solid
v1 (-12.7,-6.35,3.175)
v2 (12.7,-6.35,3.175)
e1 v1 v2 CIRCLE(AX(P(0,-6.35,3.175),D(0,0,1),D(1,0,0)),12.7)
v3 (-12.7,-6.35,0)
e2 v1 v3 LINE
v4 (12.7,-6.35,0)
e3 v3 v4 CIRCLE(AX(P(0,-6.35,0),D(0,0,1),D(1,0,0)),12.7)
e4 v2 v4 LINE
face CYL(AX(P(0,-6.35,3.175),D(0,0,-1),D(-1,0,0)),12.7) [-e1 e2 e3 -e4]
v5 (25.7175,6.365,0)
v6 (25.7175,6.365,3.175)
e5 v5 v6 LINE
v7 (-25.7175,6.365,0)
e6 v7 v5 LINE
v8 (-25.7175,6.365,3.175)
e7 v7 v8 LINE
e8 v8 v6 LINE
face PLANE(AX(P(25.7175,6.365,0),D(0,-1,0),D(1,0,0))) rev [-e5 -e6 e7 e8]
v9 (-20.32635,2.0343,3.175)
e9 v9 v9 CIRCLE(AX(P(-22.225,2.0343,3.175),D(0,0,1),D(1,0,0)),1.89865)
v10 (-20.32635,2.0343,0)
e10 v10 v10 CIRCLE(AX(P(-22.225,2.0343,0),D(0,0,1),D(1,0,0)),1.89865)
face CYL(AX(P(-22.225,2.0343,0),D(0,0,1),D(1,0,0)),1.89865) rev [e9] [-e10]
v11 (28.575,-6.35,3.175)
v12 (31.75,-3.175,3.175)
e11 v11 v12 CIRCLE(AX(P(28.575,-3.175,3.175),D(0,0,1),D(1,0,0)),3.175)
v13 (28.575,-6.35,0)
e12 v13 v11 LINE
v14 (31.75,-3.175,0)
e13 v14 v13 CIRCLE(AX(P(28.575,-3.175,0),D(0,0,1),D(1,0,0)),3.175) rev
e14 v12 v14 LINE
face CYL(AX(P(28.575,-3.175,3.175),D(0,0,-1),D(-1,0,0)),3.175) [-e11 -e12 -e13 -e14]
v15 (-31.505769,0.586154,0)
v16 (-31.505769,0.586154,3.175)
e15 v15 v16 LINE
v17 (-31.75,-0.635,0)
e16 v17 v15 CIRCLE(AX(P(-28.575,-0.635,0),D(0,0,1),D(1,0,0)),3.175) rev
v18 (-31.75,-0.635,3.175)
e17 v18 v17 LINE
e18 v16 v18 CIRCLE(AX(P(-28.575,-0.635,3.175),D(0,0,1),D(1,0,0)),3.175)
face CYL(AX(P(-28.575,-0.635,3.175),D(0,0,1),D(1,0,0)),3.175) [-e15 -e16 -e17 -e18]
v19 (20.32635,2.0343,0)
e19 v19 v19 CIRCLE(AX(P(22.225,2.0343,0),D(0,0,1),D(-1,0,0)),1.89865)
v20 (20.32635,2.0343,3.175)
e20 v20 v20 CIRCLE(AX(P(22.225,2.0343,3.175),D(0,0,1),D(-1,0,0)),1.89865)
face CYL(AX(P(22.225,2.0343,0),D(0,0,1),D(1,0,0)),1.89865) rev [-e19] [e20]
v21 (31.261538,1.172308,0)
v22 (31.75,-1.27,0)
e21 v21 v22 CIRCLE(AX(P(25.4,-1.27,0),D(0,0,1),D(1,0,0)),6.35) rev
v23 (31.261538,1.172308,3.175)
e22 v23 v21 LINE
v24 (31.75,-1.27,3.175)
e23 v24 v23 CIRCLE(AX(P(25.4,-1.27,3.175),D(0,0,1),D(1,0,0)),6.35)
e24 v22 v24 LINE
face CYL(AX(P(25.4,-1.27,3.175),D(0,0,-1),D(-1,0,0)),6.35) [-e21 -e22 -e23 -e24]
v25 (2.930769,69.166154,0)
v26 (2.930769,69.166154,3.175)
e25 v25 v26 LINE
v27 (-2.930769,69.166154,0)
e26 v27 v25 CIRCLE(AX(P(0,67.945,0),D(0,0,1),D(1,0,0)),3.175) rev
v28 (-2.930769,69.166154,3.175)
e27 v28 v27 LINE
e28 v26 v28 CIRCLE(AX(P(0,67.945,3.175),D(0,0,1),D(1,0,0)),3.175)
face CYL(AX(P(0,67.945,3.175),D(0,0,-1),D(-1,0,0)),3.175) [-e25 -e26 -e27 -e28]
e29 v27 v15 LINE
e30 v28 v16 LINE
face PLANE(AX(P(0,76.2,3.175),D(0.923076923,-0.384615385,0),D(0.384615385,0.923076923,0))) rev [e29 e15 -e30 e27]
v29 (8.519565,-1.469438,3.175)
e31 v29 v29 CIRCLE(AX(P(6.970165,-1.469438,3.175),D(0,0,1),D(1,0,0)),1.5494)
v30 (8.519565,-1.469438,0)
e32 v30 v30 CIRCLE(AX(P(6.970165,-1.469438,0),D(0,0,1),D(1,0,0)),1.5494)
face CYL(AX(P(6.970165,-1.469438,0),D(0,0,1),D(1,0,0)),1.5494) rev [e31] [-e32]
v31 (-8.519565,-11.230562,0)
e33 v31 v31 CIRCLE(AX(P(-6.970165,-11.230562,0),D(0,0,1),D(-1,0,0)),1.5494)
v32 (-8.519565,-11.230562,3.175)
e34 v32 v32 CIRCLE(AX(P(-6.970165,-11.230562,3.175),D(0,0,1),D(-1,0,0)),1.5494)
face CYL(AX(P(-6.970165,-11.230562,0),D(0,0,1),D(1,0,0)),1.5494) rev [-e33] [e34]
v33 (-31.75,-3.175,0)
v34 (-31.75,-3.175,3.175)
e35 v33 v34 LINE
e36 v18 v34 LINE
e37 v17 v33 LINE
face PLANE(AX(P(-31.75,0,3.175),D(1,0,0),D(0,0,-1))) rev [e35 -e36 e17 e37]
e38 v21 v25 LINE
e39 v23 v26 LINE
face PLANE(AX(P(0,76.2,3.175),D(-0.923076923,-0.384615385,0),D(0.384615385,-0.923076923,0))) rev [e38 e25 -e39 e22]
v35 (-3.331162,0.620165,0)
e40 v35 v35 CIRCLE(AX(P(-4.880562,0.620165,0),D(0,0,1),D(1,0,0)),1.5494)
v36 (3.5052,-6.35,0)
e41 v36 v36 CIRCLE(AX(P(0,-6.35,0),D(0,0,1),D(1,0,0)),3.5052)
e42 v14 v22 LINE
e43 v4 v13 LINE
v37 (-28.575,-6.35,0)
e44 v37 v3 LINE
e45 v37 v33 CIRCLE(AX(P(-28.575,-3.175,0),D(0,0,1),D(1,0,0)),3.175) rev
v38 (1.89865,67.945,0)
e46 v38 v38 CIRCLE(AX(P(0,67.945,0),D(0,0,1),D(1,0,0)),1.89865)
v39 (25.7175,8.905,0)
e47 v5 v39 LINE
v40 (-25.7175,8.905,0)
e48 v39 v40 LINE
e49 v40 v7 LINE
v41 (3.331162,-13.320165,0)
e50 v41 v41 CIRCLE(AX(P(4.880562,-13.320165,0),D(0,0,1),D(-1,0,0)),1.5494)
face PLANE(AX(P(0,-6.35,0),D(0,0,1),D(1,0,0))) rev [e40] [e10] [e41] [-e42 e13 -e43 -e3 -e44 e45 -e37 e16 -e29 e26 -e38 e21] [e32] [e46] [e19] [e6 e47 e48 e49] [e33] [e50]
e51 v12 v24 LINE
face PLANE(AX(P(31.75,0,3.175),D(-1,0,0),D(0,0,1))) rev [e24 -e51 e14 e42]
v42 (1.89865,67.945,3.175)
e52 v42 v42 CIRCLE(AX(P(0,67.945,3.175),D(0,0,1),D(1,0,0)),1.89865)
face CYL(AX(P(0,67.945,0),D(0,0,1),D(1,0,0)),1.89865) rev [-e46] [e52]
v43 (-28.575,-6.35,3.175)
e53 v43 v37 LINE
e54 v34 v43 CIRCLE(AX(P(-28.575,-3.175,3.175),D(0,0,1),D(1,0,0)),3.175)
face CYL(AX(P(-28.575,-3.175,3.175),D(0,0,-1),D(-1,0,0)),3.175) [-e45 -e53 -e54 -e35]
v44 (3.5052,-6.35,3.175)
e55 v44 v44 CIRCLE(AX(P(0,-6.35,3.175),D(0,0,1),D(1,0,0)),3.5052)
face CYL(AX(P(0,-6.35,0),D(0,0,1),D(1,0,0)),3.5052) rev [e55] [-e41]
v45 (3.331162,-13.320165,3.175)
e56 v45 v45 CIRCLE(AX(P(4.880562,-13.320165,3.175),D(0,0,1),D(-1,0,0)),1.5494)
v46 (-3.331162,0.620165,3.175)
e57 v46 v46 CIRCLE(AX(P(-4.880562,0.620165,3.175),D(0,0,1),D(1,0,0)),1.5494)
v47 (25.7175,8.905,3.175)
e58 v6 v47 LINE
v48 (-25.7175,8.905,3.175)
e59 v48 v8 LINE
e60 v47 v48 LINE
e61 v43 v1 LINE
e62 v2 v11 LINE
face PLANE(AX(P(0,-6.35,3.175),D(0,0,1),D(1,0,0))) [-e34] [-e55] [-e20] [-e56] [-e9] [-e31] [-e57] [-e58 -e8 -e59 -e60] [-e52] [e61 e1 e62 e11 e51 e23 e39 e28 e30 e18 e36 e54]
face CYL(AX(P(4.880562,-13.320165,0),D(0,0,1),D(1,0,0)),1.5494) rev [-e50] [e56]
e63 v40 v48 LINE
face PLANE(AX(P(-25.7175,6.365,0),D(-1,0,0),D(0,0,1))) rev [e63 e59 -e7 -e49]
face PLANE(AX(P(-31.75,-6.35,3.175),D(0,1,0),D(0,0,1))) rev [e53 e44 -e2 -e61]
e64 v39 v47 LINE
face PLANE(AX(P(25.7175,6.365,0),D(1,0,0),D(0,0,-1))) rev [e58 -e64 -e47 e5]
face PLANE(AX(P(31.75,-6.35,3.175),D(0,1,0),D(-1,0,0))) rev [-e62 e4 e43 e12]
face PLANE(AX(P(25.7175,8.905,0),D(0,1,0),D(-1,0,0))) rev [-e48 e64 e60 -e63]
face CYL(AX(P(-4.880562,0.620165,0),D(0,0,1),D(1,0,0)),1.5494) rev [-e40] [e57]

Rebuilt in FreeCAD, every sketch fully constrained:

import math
import FreeCAD as App
import Part
import Sketcher
from FreeCAD import Vector
Q = App.Units.Quantity


def edges_at(feature, points):
    """Names of the edges that pass closest to the given points."""
    edges = feature.Shape.Edges
    near = lambda p: min(range(len(edges)), key=lambda i: edges[i].distToShape(Part.Vertex(*p))[0])
    return sorted({f"Edge{near(p) + 1}" for p in points})

doc = App.newDocument("Part")
params = doc.addObject("Spreadsheet::Sheet", "Params")
for row, (alias, value) in enumerate([
    ("sketch1_radius", "0.5 in"),
    ("sketch1_width", "0.75 in"),
    ("sketch1_height", "0.25 in"),
    ("pad1_length", "0.125 in"),
    ("fillet_radius", "0.125 in"),
    ("fillet2_radius", "0.125 in"),
    ("fillet3_radius", "0.125 in"),
    ("fillet4_radius", "0.25 in"),
    ("fillet5_radius", "0.125 in"),
    ("sketch2_diameter", "0.276 in"),
    ("sketch2_diameter2", "0.122 in"),
    ("sketch3_height", "0.1 in"),
    ("sketch3_width", "2.025 in"),
], start=1):
    params.set(f"A{row}", alias)
    params.set(f"B{row}", "=" + value)
    params.setAlias(f"B{row}", alias)

body = doc.addObject("PartDesign::Body", "Body")

# Sketch on XY plane
sketch1 = doc.addObject("Sketcher::SketchObject", "Sketch")
body.addObject(sketch1)
sketch1.AttachmentSupport = (doc.XY_Plane, [""])
sketch1.MapMode = "FlatFace"
sketch1.addGeometry([
    Part.LineSegment(Vector(-32, 0, 0), Vector(-32, -6, 0)),  # 0
    Part.LineSegment(Vector(-32, -6, 0), Vector(-13, -6, 0)),  # 1
    Part.ArcOfCircle(Part.Circle(Vector(0, -6, 0), Vector(0, 0, 1), 13), math.radians(180), math.radians(360)),  # 2
    Part.LineSegment(Vector(13, -6, 0), Vector(32, -6, 0)),  # 3
    Part.LineSegment(Vector(32, -6, 0), Vector(32, 0, 0)),  # 4
    Part.LineSegment(Vector(32, 0, 0), Vector(0, 76, 0)),  # 5
    Part.LineSegment(Vector(0, 76, 0), Vector(-32, 0, 0)),  # 6
], False)
sketch1.addConstraint([
    Sketcher.Constraint("Coincident", 0, 2, 1, 1),
    Sketcher.Constraint("Coincident", 1, 2, 2, 1),
    Sketcher.Constraint("Coincident", 2, 2, 3, 1),
    Sketcher.Constraint("Coincident", 3, 2, 4, 1),
    Sketcher.Constraint("Coincident", 4, 2, 5, 1),
    Sketcher.Constraint("Coincident", 5, 2, 6, 1),
    Sketcher.Constraint("Coincident", 6, 2, 0, 1),
    Sketcher.Constraint("Vertical", 0),
    Sketcher.Constraint("Horizontal", 1),
    Sketcher.Constraint("Horizontal", 3),
    Sketcher.Constraint("Vertical", 4),
    Sketcher.Constraint("Symmetric", 4, 2, 6, 2, -1, 1),
    Sketcher.Constraint("Symmetric", 1, 2, 2, 2, -2),
    Sketcher.Constraint("PointOnObject", 4, 2, -1),
    Sketcher.Constraint("PointOnObject", 5, 2, -2),
    Sketcher.Constraint("Horizontal", 2, 3, 0, 2),
    Sketcher.Constraint("Radius", 2, Q("0.5 in")),
    Sketcher.Constraint("DistanceY", -1, 1, 5, 2, Q("3 in")),
    Sketcher.Constraint("DistanceX", 1, 1, 1, 2, Q("0.75 in")),
    Sketcher.Constraint("DistanceY", 0, 2, 0, 1, Q("0.25 in")),
])
sketch1.setExpression("Constraints[16]", "Params.sketch1_radius")
sketch1.setExpression("Constraints[18]", "Params.sketch1_width")
sketch1.setExpression("Constraints[19]", "Params.sketch1_height")
pad1 = doc.addObject("PartDesign::Pad", "Pad")
body.addObject(pad1)
pad1.Profile = sketch1
pad1.setExpression("Length", "Params.pad1_length")
doc.recompute()

fillet = doc.addObject("PartDesign::Fillet", "Fillet")
body.addObject(fillet)
fillet.Base = (pad1, edges_at(pad1, [(-31.75, -6.35, 1.587)]))
fillet.setExpression("Radius", "Params.fillet_radius")
doc.recompute()

fillet2 = doc.addObject("PartDesign::Fillet", "Fillet001")
body.addObject(fillet2)
fillet2.Base = (fillet, edges_at(fillet, [(-31.75, 0, 1.587)]))
fillet2.setExpression("Radius", "Params.fillet2_radius")
doc.recompute()

fillet3 = doc.addObject("PartDesign::Fillet", "Fillet002")
body.addObject(fillet3)
fillet3.Base = (fillet2, edges_at(fillet2, [(0, 76.2, 1.587)]))
fillet3.setExpression("Radius", "Params.fillet3_radius")
doc.recompute()

fillet4 = doc.addObject("PartDesign::Fillet", "Fillet003")
body.addObject(fillet4)
fillet4.Base = (fillet3, edges_at(fillet3, [(31.75, 0, 1.587)]))
fillet4.setExpression("Radius", "Params.fillet4_radius")
doc.recompute()

fillet5 = doc.addObject("PartDesign::Fillet", "Fillet004")
body.addObject(fillet5)
fillet5.Base = (fillet4, edges_at(fillet4, [(31.75, -6.35, 1.587)]))
fillet5.setExpression("Radius", "Params.fillet5_radius")

# Sketch on XY plane
sketch2 = doc.addObject("Sketcher::SketchObject", "Sketch001")
body.addObject(sketch2)
sketch2.AttachmentSupport = (doc.XY_Plane, [""])
sketch2.MapMode = "FlatFace"
sketch2.AttachmentOffset = App.Placement(Vector(0, 0, 0.125 * 25.4), App.Rotation())
sketch2.addGeometry([
    Part.Circle(Vector(0, -6.3, 0), Vector(0, 0, 1), 3.5),  # 0
    Part.Circle(Vector(-4.9, 0.6, 0), Vector(0, 0, 1), 1.5),  # 1
    Part.Circle(Vector(4.9, -13.3, 0), Vector(0, 0, 1), 1.5),  # 2
    Part.Circle(Vector(7, -1.5, 0), Vector(0, 0, 1), 1.5),  # 3
    Part.Circle(Vector(-7, -11.2, 0), Vector(0, 0, 1), 1.5),  # 4
], False)
sketch2.addConstraint([
    Sketcher.Constraint("Equal", 1, 2),
    Sketcher.Constraint("Equal", 2, 3),
    Sketcher.Constraint("Equal", 3, 4),
    Sketcher.Constraint("PointOnObject", 0, 3, -2),
    Sketcher.Constraint("Diameter", 0, Q("0.276 in")),
    Sketcher.Constraint("Diameter", 1, Q("0.122 in")),
    Sketcher.Constraint("DistanceY", 0, 3, -1, 1, Q("0.25 in")),
    Sketcher.Constraint("DistanceX", 1, 3, -1, 1, 4.880562),
    Sketcher.Constraint("DistanceX", -1, 1, 2, 3, 4.880562),
    Sketcher.Constraint("DistanceY", 3, 3, -1, 1, 1.469438),
    Sketcher.Constraint("DistanceY", 4, 3, -1, 1, 11.230562),
    Sketcher.Constraint("DistanceY", 2, 3, 1, 3, 13.940329),
    Sketcher.Constraint("DistanceX", 4, 3, 3, 3, 13.940329),
    Sketcher.Constraint("DistanceY", -1, 1, 1, 3, 0.620165),
    Sketcher.Constraint("DistanceX", -1, 1, 3, 3, 6.970165),
])
sketch2.setExpression("Constraints[4]", "Params.sketch2_diameter")
sketch2.setExpression("Constraints[5]", "Params.sketch2_diameter2")
pocket1 = doc.addObject("PartDesign::Pocket", "Pocket")
body.addObject(pocket1)
pocket1.Profile = sketch2
pocket1.Type = "ThroughAll"

# Sketch on XY plane
sketch3 = doc.addObject("Sketcher::SketchObject", "Sketch002")
body.addObject(sketch3)
sketch3.AttachmentSupport = (doc.XY_Plane, [""])
sketch3.MapMode = "FlatFace"
sketch3.AttachmentOffset = App.Placement(Vector(0, 0, 0.125 * 25.4), App.Rotation())
sketch3.addGeometry([
    Part.LineSegment(Vector(-25.7, 8.9, 0), Vector(-25.7, 6.4, 0)),
    Part.LineSegment(Vector(-25.7, 6.4, 0), Vector(25.7, 6.4, 0)),
    Part.LineSegment(Vector(25.7, 6.4, 0), Vector(25.7, 8.9, 0)),
    Part.LineSegment(Vector(25.7, 8.9, 0), Vector(-25.7, 8.9, 0)),
], False)
sketch3.addConstraint([
    Sketcher.Constraint("Coincident", 0, 2, 1, 1),
    Sketcher.Constraint("Coincident", 1, 2, 2, 1),
    Sketcher.Constraint("Coincident", 2, 2, 3, 1),
    Sketcher.Constraint("Coincident", 3, 2, 0, 1),
    Sketcher.Constraint("Vertical", 0),
    Sketcher.Constraint("Horizontal", 1),
    Sketcher.Constraint("Vertical", 2),
    Sketcher.Constraint("Horizontal", 3),
    Sketcher.Constraint("DistanceY", 0, 2, 0, 1, Q("0.1 in")),
    Sketcher.Constraint("DistanceX", 1, 1, 1, 2, Q("2.025 in")),
    Sketcher.Constraint("DistanceX", 0, 2, -1, 1, Q("1.0125 in")),
    Sketcher.Constraint("DistanceY", -1, 1, 0, 2, 6.365),
])
sketch3.setExpression("Constraints[8]", "Params.sketch3_height")
sketch3.setExpression("Constraints[9]", "Params.sketch3_width")
pocket2 = doc.addObject("PartDesign::Pocket", "Pocket001")
body.addObject(pocket2)
pocket2.Profile = sketch3
pocket2.Type = "ThroughAll"

# Sketch on XY plane
sketch4 = doc.addObject("Sketcher::SketchObject", "Sketch003")
body.addObject(sketch4)
sketch4.AttachmentSupport = (doc.XY_Plane, [""])
sketch4.MapMode = "FlatFace"
sketch4.AttachmentOffset = App.Placement(Vector(0, 0, 0.125 * 25.4), App.Rotation())
sketch4.addGeometry([
    Part.Circle(Vector(-22.2, 2, 0), Vector(0, 0, 1), 1.9),
    Part.Circle(Vector(22.2, 2, 0), Vector(0, 0, 1), 1.9),
], False)
sketch4.addConstraint([
    Sketcher.Constraint("Equal", 0, 1),
    Sketcher.Constraint("Symmetric", 0, 3, 1, 3, -2),
    Sketcher.Constraint("Diameter", 0, Q("0.1495 in")),
    Sketcher.Constraint("DistanceX", 0, 3, 1, 3, Q("1.75 in")),
    Sketcher.Constraint("DistanceY", -1, 1, 0, 3, 2.0343),
])
pocket3 = doc.addObject("PartDesign::Pocket", "Pocket002")
body.addObject(pocket3)
pocket3.Profile = sketch4
pocket3.Type = "ThroughAll"

# Sketch on XY plane
sketch5 = doc.addObject("Sketcher::SketchObject", "Sketch004")
body.addObject(sketch5)
sketch5.AttachmentSupport = (doc.XY_Plane, [""])
sketch5.MapMode = "FlatFace"
sketch5.AttachmentOffset = App.Placement(Vector(0, 0, 0.125 * 25.4), App.Rotation())
sketch5.addGeometry(Part.Circle(Vector(0, 67.9, 0), Vector(0, 0, 1), 1.9), False)
sketch5.addConstraint([
    Sketcher.Constraint("PointOnObject", 0, 3, -2),
    Sketcher.Constraint("Diameter", 0, Q("0.1495 in")),
    Sketcher.Constraint("DistanceY", -1, 1, 0, 3, Q("2.675 in")),
])
pocket4 = doc.addObject("PartDesign::Pocket", "Pocket003")
body.addObject(pocket4)
pocket4.Profile = sketch5
pocket4.Type = "ThroughAll"

doc.recompute()
